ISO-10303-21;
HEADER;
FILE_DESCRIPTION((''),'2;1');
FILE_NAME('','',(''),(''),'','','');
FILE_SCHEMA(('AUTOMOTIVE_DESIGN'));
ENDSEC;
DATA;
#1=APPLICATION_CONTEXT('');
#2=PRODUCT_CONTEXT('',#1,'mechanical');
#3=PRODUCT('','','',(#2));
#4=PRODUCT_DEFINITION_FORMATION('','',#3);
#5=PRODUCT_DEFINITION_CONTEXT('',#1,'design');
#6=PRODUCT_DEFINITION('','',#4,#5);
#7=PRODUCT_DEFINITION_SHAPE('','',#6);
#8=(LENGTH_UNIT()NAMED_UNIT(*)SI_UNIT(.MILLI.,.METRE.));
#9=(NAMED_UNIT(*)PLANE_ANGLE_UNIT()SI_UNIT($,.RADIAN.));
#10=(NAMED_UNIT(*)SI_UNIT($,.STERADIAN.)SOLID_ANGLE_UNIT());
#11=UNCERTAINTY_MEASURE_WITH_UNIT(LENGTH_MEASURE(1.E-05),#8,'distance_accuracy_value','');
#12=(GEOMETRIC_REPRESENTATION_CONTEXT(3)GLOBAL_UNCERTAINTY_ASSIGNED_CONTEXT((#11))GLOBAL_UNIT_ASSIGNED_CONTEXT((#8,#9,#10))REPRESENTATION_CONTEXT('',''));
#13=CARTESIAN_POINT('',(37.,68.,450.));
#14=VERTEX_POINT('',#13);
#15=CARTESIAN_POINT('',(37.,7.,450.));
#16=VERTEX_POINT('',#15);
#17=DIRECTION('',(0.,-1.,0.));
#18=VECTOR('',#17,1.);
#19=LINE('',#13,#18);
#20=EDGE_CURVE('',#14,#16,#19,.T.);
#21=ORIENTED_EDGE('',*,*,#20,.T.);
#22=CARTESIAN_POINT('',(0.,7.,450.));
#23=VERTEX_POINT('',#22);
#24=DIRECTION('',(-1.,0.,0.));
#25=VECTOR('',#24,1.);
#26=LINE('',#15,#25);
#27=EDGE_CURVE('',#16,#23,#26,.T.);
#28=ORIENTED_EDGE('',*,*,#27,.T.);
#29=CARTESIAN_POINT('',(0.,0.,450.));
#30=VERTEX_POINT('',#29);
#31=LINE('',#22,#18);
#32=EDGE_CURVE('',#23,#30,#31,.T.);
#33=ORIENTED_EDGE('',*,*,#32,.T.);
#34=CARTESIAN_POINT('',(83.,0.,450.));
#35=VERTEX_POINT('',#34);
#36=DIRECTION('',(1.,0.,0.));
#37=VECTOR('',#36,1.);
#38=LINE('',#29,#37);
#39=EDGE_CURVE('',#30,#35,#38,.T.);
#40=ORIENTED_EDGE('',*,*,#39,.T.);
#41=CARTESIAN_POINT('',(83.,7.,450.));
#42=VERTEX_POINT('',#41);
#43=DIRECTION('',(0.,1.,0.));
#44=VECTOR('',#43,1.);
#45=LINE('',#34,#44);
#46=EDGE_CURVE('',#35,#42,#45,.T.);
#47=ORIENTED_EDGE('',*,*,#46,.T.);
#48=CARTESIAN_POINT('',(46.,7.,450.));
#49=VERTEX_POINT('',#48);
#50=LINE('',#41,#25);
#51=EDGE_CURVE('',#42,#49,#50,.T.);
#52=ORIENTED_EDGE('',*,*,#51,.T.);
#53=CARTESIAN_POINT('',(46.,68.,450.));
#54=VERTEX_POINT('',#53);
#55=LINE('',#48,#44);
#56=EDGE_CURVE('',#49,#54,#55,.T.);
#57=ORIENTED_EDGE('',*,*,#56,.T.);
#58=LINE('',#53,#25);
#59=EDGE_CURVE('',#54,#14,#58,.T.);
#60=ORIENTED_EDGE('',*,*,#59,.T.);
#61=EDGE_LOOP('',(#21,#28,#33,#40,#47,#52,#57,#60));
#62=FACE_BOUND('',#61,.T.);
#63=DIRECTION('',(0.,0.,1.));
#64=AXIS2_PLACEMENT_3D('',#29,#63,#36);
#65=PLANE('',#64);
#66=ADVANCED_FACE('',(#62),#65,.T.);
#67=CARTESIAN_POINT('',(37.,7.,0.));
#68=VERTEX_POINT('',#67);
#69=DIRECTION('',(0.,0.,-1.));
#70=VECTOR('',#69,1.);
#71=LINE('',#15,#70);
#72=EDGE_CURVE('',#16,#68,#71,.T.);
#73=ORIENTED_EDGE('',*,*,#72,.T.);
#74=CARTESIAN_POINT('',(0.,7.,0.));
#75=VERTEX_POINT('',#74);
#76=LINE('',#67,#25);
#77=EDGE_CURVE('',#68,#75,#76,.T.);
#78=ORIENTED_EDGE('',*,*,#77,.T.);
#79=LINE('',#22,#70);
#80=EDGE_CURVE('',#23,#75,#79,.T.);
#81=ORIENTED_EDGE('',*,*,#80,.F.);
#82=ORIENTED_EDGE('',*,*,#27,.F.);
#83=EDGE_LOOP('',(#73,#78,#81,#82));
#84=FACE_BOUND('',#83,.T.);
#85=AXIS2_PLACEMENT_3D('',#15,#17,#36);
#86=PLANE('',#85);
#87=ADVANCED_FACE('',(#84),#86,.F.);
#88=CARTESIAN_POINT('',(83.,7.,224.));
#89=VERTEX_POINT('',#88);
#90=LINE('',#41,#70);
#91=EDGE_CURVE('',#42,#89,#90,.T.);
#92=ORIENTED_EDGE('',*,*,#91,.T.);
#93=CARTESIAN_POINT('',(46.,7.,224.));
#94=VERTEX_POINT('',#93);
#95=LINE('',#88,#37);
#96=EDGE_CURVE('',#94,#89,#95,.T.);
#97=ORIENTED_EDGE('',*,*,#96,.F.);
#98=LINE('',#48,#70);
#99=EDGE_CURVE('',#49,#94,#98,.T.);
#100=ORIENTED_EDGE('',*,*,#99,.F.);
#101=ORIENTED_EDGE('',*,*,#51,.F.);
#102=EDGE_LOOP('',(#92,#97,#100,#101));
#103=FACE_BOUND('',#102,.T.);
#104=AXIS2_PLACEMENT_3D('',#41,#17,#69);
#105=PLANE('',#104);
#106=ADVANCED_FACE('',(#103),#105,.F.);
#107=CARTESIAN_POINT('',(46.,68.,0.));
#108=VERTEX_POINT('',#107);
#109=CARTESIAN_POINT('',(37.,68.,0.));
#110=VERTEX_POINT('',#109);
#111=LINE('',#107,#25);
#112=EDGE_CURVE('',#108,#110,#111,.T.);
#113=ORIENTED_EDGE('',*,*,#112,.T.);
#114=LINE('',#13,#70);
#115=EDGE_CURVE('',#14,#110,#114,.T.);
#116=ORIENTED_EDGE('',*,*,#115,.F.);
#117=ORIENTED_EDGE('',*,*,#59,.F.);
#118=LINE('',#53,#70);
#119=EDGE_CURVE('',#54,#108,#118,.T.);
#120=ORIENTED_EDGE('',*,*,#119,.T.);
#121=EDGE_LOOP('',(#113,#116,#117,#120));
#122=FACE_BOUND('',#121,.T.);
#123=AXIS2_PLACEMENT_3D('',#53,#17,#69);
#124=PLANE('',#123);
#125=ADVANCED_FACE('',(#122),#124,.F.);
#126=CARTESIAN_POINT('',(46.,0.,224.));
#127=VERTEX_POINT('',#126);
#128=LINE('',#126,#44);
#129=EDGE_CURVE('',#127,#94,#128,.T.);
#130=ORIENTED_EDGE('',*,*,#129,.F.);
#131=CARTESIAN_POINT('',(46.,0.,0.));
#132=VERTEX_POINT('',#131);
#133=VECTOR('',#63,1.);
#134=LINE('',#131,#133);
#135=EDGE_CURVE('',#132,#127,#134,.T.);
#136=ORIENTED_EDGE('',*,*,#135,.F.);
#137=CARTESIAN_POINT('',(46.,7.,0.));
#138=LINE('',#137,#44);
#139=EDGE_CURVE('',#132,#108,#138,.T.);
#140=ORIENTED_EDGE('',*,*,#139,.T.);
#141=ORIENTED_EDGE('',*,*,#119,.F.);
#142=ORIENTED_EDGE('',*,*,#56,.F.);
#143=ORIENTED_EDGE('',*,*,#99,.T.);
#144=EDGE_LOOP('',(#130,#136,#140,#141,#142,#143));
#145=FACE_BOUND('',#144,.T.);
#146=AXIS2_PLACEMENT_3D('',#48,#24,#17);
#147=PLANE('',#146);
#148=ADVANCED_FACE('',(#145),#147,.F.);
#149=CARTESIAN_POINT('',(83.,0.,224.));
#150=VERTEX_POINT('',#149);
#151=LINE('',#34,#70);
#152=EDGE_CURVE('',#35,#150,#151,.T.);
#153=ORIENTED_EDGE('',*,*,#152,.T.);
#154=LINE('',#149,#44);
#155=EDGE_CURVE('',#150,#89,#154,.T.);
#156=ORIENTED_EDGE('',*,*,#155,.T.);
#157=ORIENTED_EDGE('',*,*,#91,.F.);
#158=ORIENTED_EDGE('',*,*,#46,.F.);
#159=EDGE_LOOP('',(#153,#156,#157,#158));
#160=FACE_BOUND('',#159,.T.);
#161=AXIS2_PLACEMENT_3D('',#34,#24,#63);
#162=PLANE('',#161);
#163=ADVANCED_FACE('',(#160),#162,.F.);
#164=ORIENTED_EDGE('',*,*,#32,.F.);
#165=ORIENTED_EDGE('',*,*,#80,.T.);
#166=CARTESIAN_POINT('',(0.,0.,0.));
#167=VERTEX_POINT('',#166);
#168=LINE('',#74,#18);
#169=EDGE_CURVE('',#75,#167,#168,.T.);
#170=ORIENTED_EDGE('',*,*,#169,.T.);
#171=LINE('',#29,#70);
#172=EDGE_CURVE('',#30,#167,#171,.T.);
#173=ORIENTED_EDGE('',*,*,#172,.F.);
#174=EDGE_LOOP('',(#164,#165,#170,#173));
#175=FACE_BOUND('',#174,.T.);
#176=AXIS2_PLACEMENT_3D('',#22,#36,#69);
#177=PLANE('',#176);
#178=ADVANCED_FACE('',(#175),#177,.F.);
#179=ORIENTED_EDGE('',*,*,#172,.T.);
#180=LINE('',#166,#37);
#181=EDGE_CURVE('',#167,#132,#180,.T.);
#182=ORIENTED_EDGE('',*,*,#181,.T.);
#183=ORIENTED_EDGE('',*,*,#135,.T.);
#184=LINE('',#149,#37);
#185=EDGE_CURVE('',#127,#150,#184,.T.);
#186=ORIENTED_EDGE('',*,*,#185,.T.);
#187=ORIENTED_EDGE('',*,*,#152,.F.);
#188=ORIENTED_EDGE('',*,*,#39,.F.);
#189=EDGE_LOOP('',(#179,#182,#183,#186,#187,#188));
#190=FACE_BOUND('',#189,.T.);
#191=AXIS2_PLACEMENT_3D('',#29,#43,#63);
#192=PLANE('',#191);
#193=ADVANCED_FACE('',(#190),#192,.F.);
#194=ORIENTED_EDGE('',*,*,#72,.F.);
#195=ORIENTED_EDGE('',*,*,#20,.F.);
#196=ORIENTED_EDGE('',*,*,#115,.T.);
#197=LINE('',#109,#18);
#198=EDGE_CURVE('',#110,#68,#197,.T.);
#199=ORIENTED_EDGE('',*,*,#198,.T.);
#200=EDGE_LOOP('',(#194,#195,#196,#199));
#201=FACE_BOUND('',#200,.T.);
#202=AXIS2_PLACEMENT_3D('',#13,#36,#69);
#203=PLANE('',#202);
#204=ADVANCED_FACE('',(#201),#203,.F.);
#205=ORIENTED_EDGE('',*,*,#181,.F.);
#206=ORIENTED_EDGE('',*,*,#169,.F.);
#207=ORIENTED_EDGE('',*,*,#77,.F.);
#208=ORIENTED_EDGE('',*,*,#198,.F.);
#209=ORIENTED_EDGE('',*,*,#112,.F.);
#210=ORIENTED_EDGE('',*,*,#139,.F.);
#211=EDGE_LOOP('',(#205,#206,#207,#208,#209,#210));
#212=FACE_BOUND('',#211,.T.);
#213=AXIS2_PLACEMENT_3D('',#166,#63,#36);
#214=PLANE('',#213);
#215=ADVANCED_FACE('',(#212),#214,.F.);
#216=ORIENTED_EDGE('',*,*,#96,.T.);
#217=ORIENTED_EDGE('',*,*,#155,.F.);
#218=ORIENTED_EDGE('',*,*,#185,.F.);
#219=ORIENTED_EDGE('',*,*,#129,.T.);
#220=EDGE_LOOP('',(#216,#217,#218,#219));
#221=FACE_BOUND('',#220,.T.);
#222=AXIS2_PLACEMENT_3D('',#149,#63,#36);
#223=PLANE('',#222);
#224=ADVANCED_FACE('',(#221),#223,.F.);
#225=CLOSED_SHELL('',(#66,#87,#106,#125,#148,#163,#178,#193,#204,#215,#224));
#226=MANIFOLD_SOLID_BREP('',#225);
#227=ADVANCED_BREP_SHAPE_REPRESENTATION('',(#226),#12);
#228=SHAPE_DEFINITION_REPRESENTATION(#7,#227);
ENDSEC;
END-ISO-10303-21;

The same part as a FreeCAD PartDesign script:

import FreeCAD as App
import Part
import Sketcher

V = App.Vector
Q = App.Units.Quantity

doc = App.newDocument("Part")
body = doc.addObject("PartDesign::Body", "Body")

sketch1 = body.newObject("Sketcher::SketchObject", "Sketch")
sketch1.AttachmentSupport = (doc.getObject("XY_Plane"), [""])
sketch1.MapMode = "FlatFace"
sketch1.addGeometry([
    Part.LineSegment(V(0, 0, 0), V(83, 0, 0)),
    Part.LineSegment(V(83, 0, 0), V(83, 7, 0)),
    Part.LineSegment(V(83, 7, 0), V(46, 7, 0)),
    Part.LineSegment(V(46, 7, 0), V(46, 68, 0)),
    Part.LineSegment(V(46, 68, 0), V(37, 68, 0)),
    Part.LineSegment(V(37, 68, 0), V(37, 7, 0)),
    Part.LineSegment(V(37, 7, 0), V(0, 7, 0)),
    Part.LineSegment(V(0, 7, 0), V(0, 0, 0)),
], False)
sketch1.addConstraint([
    Sketcher.Constraint("Coincident", 0, 2, 1, 1),
    Sketcher.Constraint("Coincident", 1, 2, 2, 1),
    Sketcher.Constraint("Coincident", 2, 2, 3, 1),
    Sketcher.Constraint("Coincident", 3, 2, 4, 1),
    Sketcher.Constraint("Coincident", 4, 2, 5, 1),
    Sketcher.Constraint("Coincident", 5, 2, 6, 1),
    Sketcher.Constraint("Coincident", 6, 2, 7, 1),
    Sketcher.Constraint("Coincident", 7, 2, 0, 1),
    Sketcher.Constraint("Horizontal", 0),
    Sketcher.Constraint("Vertical", 1),
    Sketcher.Constraint("Horizontal", 2),
    Sketcher.Constraint("Vertical", 3),
    Sketcher.Constraint("Horizontal", 4),
    Sketcher.Constraint("Vertical", 5),
    Sketcher.Constraint("Horizontal", 6),
    Sketcher.Constraint("Vertical", 7),
    Sketcher.Constraint("Coincident", 7, 2, -1, 1),
    Sketcher.Constraint("Horizontal", 2, 2, 5, 2),
    Sketcher.Constraint("Equal", 2, 6),
    Sketcher.Constraint("DistanceX", 0, 1, 0, 2, Q("83 mm")),
    Sketcher.Constraint("DistanceX", 2, 2, 2, 1, Q("37 mm")),
    Sketcher.Constraint("DistanceY", 1, 1, 1, 2, Q("7 mm")),
    Sketcher.Constraint("DistanceY", 3, 1, 3, 2, Q("61 mm")),
])
pad1 = body.newObject("PartDesign::Pad", "Pad")
pad1.Profile = sketch1
pad1.Length = 450

sketch2 = body.newObject("Sketcher::SketchObject", "Sketch001")
sketch2.AttachmentSupport = (doc.getObject("XZ_Plane"), [""])
sketch2.MapMode = "FlatFace"
sketch2.AttachmentOffset = App.Placement(V(0, 0, -7), App.Rotation())
sketch2.addGeometry([
    Part.LineSegment(V(46, 0, 0), V(46, 224, 0)),
    Part.LineSegment(V(46, 224, 0), V(83, 224, 0)),
    Part.LineSegment(V(83, 224, 0), V(83, 0, 0)),
    Part.LineSegment(V(83, 0, 0), V(46, 0, 0)),
], False)
sketch2.addConstraint([
    Sketcher.Constraint("Coincident", 0, 2, 1, 1),
    Sketcher.Constraint("Coincident", 1, 2, 2, 1),
    Sketcher.Constraint("Coincident", 2, 2, 3, 1),
    Sketcher.Constraint("Coincident", 3, 2, 0, 1),
    Sketcher.Constraint("Vertical", 0),
    Sketcher.Constraint("Horizontal", 1),
    Sketcher.Constraint("Vertical", 2),
    Sketcher.Constraint("Horizontal", 3),
    Sketcher.Constraint("PointOnObject", 2, 2, -1),
    Sketcher.Constraint("DistanceX", 1, 1, 1, 2, Q("37 mm")),
    Sketcher.Constraint("DistanceY", 0, 1, 0, 2, Q("224 mm")),
    Sketcher.Constraint("DistanceX", -1, 1, 0, 2, Q("46 mm")),
])
pocket1 = body.newObject("PartDesign::Pocket", "Pocket")
pocket1.Profile = sketch2
pocket1.Length = 7
pocket1.Reversed = True

doc.recompute()
